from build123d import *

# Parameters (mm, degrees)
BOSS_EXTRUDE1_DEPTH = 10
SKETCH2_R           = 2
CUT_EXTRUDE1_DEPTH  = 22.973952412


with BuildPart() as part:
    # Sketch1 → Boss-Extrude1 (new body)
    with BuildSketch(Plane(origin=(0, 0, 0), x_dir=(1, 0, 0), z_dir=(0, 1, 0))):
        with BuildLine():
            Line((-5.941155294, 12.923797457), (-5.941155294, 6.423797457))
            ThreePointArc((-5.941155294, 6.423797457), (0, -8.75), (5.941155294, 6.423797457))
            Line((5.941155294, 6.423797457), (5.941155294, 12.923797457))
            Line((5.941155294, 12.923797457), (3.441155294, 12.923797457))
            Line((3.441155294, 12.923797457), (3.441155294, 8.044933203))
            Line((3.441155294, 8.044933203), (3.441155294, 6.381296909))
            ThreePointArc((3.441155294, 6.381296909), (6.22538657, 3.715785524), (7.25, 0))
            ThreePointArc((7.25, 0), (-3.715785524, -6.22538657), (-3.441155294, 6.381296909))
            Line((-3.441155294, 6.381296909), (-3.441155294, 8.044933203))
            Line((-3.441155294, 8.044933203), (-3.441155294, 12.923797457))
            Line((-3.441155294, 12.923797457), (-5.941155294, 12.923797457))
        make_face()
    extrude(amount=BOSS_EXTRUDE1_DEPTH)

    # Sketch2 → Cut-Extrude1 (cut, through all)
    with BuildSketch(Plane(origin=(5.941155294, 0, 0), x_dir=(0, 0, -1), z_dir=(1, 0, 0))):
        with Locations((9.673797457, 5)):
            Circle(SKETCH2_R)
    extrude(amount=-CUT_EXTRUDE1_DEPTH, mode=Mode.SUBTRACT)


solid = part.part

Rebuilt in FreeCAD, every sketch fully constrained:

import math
import FreeCAD as App
import Part
import Sketcher
from FreeCAD import Vector
Q = App.Units.Quantity

doc = App.newDocument("Part")
body = doc.addObject("PartDesign::Body", "Body")

sketch1 = doc.addObject("Sketcher::SketchObject", "Sketch")
body.addObject(sketch1)
sketch1.AttachmentSupport = (doc.XZ_Plane, [""])
sketch1.MapMode = "FlatFace"
sketch1.addGeometry([
    Part.LineSegment(Vector(-5.941155, -12.923797, 0), Vector(-5.941155, -6.423797, 0)),
    Part.ArcOfCircle(Part.Circle(Vector(0, 0, 0), Vector(0, 0, 1), 8.75), math.radians(-47.235296), math.radians(227.235296)),
    Part.LineSegment(Vector(5.941155, -6.423797, 0), Vector(5.941155, -12.923797, 0)),
    Part.LineSegment(Vector(5.941155, -12.923797, 0), Vector(3.441155, -12.923797, 0)),
    Part.LineSegment(Vector(3.441155, -12.923797, 0), Vector(3.441155, -6.381297, 0)),
    Part.ArcOfCircle(Part.Circle(Vector(0, 0, 0), Vector(0, 0, 1), 7.25), math.radians(-61.66395), math.radians(0)),
    Part.ArcOfCircle(Part.Circle(Vector(0, 0, 0), Vector(0, 0, 1), 7.25), math.radians(0), math.radians(241.66395)),
    Part.LineSegment(Vector(-3.441155, -6.381297, 0), Vector(-3.441155, -12.923797, 0)),
    Part.LineSegment(Vector(-3.441155, -12.923797, 0), Vector(-5.941155, -12.923797, 0)),
], False)
sketch1.addConstraint([
    Sketcher.Constraint("Coincident", 0, 2, 1, 2),
    Sketcher.Constraint("Coincident", 1, 1, 2, 1),
    Sketcher.Constraint("Coincident", 2, 2, 3, 1),
    Sketcher.Constraint("Coincident", 3, 2, 4, 1),
    Sketcher.Constraint("Coincident", 4, 2, 5, 1),
    Sketcher.Constraint("Tangent", 5, 2, 6, 1),
    Sketcher.Constraint("Coincident", 6, 2, 7, 1),
    Sketcher.Constraint("Coincident", 7, 2, 8, 1),
    Sketcher.Constraint("Coincident", 8, 2, 0, 1),
    Sketcher.Constraint("Vertical", 0),
    Sketcher.Constraint("Vertical", 2),
    Sketcher.Constraint("Horizontal", 3),
    Sketcher.Constraint("Vertical", 4),
    Sketcher.Constraint("Vertical", 7),
    Sketcher.Constraint("Horizontal", 8),
    Sketcher.Constraint("Coincident", 1, 3, -1, 1),
    Sketcher.Constraint("Coincident", 5, 3, -1, 1),
    Sketcher.Constraint("Equal", 5, 6),
    Sketcher.Constraint("Symmetric", 3, 2, 7, 2, -2),
    Sketcher.Constraint("PointOnObject", 5, 2, -1),
    Sketcher.Constraint("Horizontal", 0, 2, 1, 1),
    Sketcher.Constraint("Radius", 1, Q("8.75 mm")),
    Sketcher.Constraint("Radius", 5, Q("7.25 mm")),
    Sketcher.Constraint("DistanceX", 3, 2, 3, 1, Q("2.5 mm")),
    Sketcher.Constraint("DistanceY", 0, 1, 0, 2, Q("6.5 mm")),
    Sketcher.Constraint("DistanceY", 4, 1, 4, 2, Q("6.542501 mm")),
])
pad1 = doc.addObject("PartDesign::Pad", "Pad")
body.addObject(pad1)
pad1.Profile = sketch1
pad1.Length = 10
pad1.Reversed = True

sketch2 = doc.addObject("Sketcher::SketchObject", "Sketch001")
body.addObject(sketch2)
sketch2.AttachmentSupport = (doc.YZ_Plane, [""])
sketch2.MapMode = "FlatFace"
sketch2.AttachmentOffset = App.Placement(Vector(0, 0, 5.941155), App.Rotation())
sketch2.addGeometry(Part.Circle(Vector(5, -9.673797, 0), Vector(0, 0, 1), 2), False)
sketch2.addConstraint([
    Sketcher.Constraint("Diameter", 0, Q("4 mm")),
    Sketcher.Constraint("DistanceX", -1, 1, 0, 3, Q("5 mm")),
    Sketcher.Constraint("DistanceY", 0, 3, -1, 1, Q("9.673797 mm")),
])
pocket1 = doc.addObject("PartDesign::Pocket", "Pocket")
body.addObject(pocket1)
pocket1.Profile = sketch2
pocket1.Type = "ThroughAll"

doc.recompute()
